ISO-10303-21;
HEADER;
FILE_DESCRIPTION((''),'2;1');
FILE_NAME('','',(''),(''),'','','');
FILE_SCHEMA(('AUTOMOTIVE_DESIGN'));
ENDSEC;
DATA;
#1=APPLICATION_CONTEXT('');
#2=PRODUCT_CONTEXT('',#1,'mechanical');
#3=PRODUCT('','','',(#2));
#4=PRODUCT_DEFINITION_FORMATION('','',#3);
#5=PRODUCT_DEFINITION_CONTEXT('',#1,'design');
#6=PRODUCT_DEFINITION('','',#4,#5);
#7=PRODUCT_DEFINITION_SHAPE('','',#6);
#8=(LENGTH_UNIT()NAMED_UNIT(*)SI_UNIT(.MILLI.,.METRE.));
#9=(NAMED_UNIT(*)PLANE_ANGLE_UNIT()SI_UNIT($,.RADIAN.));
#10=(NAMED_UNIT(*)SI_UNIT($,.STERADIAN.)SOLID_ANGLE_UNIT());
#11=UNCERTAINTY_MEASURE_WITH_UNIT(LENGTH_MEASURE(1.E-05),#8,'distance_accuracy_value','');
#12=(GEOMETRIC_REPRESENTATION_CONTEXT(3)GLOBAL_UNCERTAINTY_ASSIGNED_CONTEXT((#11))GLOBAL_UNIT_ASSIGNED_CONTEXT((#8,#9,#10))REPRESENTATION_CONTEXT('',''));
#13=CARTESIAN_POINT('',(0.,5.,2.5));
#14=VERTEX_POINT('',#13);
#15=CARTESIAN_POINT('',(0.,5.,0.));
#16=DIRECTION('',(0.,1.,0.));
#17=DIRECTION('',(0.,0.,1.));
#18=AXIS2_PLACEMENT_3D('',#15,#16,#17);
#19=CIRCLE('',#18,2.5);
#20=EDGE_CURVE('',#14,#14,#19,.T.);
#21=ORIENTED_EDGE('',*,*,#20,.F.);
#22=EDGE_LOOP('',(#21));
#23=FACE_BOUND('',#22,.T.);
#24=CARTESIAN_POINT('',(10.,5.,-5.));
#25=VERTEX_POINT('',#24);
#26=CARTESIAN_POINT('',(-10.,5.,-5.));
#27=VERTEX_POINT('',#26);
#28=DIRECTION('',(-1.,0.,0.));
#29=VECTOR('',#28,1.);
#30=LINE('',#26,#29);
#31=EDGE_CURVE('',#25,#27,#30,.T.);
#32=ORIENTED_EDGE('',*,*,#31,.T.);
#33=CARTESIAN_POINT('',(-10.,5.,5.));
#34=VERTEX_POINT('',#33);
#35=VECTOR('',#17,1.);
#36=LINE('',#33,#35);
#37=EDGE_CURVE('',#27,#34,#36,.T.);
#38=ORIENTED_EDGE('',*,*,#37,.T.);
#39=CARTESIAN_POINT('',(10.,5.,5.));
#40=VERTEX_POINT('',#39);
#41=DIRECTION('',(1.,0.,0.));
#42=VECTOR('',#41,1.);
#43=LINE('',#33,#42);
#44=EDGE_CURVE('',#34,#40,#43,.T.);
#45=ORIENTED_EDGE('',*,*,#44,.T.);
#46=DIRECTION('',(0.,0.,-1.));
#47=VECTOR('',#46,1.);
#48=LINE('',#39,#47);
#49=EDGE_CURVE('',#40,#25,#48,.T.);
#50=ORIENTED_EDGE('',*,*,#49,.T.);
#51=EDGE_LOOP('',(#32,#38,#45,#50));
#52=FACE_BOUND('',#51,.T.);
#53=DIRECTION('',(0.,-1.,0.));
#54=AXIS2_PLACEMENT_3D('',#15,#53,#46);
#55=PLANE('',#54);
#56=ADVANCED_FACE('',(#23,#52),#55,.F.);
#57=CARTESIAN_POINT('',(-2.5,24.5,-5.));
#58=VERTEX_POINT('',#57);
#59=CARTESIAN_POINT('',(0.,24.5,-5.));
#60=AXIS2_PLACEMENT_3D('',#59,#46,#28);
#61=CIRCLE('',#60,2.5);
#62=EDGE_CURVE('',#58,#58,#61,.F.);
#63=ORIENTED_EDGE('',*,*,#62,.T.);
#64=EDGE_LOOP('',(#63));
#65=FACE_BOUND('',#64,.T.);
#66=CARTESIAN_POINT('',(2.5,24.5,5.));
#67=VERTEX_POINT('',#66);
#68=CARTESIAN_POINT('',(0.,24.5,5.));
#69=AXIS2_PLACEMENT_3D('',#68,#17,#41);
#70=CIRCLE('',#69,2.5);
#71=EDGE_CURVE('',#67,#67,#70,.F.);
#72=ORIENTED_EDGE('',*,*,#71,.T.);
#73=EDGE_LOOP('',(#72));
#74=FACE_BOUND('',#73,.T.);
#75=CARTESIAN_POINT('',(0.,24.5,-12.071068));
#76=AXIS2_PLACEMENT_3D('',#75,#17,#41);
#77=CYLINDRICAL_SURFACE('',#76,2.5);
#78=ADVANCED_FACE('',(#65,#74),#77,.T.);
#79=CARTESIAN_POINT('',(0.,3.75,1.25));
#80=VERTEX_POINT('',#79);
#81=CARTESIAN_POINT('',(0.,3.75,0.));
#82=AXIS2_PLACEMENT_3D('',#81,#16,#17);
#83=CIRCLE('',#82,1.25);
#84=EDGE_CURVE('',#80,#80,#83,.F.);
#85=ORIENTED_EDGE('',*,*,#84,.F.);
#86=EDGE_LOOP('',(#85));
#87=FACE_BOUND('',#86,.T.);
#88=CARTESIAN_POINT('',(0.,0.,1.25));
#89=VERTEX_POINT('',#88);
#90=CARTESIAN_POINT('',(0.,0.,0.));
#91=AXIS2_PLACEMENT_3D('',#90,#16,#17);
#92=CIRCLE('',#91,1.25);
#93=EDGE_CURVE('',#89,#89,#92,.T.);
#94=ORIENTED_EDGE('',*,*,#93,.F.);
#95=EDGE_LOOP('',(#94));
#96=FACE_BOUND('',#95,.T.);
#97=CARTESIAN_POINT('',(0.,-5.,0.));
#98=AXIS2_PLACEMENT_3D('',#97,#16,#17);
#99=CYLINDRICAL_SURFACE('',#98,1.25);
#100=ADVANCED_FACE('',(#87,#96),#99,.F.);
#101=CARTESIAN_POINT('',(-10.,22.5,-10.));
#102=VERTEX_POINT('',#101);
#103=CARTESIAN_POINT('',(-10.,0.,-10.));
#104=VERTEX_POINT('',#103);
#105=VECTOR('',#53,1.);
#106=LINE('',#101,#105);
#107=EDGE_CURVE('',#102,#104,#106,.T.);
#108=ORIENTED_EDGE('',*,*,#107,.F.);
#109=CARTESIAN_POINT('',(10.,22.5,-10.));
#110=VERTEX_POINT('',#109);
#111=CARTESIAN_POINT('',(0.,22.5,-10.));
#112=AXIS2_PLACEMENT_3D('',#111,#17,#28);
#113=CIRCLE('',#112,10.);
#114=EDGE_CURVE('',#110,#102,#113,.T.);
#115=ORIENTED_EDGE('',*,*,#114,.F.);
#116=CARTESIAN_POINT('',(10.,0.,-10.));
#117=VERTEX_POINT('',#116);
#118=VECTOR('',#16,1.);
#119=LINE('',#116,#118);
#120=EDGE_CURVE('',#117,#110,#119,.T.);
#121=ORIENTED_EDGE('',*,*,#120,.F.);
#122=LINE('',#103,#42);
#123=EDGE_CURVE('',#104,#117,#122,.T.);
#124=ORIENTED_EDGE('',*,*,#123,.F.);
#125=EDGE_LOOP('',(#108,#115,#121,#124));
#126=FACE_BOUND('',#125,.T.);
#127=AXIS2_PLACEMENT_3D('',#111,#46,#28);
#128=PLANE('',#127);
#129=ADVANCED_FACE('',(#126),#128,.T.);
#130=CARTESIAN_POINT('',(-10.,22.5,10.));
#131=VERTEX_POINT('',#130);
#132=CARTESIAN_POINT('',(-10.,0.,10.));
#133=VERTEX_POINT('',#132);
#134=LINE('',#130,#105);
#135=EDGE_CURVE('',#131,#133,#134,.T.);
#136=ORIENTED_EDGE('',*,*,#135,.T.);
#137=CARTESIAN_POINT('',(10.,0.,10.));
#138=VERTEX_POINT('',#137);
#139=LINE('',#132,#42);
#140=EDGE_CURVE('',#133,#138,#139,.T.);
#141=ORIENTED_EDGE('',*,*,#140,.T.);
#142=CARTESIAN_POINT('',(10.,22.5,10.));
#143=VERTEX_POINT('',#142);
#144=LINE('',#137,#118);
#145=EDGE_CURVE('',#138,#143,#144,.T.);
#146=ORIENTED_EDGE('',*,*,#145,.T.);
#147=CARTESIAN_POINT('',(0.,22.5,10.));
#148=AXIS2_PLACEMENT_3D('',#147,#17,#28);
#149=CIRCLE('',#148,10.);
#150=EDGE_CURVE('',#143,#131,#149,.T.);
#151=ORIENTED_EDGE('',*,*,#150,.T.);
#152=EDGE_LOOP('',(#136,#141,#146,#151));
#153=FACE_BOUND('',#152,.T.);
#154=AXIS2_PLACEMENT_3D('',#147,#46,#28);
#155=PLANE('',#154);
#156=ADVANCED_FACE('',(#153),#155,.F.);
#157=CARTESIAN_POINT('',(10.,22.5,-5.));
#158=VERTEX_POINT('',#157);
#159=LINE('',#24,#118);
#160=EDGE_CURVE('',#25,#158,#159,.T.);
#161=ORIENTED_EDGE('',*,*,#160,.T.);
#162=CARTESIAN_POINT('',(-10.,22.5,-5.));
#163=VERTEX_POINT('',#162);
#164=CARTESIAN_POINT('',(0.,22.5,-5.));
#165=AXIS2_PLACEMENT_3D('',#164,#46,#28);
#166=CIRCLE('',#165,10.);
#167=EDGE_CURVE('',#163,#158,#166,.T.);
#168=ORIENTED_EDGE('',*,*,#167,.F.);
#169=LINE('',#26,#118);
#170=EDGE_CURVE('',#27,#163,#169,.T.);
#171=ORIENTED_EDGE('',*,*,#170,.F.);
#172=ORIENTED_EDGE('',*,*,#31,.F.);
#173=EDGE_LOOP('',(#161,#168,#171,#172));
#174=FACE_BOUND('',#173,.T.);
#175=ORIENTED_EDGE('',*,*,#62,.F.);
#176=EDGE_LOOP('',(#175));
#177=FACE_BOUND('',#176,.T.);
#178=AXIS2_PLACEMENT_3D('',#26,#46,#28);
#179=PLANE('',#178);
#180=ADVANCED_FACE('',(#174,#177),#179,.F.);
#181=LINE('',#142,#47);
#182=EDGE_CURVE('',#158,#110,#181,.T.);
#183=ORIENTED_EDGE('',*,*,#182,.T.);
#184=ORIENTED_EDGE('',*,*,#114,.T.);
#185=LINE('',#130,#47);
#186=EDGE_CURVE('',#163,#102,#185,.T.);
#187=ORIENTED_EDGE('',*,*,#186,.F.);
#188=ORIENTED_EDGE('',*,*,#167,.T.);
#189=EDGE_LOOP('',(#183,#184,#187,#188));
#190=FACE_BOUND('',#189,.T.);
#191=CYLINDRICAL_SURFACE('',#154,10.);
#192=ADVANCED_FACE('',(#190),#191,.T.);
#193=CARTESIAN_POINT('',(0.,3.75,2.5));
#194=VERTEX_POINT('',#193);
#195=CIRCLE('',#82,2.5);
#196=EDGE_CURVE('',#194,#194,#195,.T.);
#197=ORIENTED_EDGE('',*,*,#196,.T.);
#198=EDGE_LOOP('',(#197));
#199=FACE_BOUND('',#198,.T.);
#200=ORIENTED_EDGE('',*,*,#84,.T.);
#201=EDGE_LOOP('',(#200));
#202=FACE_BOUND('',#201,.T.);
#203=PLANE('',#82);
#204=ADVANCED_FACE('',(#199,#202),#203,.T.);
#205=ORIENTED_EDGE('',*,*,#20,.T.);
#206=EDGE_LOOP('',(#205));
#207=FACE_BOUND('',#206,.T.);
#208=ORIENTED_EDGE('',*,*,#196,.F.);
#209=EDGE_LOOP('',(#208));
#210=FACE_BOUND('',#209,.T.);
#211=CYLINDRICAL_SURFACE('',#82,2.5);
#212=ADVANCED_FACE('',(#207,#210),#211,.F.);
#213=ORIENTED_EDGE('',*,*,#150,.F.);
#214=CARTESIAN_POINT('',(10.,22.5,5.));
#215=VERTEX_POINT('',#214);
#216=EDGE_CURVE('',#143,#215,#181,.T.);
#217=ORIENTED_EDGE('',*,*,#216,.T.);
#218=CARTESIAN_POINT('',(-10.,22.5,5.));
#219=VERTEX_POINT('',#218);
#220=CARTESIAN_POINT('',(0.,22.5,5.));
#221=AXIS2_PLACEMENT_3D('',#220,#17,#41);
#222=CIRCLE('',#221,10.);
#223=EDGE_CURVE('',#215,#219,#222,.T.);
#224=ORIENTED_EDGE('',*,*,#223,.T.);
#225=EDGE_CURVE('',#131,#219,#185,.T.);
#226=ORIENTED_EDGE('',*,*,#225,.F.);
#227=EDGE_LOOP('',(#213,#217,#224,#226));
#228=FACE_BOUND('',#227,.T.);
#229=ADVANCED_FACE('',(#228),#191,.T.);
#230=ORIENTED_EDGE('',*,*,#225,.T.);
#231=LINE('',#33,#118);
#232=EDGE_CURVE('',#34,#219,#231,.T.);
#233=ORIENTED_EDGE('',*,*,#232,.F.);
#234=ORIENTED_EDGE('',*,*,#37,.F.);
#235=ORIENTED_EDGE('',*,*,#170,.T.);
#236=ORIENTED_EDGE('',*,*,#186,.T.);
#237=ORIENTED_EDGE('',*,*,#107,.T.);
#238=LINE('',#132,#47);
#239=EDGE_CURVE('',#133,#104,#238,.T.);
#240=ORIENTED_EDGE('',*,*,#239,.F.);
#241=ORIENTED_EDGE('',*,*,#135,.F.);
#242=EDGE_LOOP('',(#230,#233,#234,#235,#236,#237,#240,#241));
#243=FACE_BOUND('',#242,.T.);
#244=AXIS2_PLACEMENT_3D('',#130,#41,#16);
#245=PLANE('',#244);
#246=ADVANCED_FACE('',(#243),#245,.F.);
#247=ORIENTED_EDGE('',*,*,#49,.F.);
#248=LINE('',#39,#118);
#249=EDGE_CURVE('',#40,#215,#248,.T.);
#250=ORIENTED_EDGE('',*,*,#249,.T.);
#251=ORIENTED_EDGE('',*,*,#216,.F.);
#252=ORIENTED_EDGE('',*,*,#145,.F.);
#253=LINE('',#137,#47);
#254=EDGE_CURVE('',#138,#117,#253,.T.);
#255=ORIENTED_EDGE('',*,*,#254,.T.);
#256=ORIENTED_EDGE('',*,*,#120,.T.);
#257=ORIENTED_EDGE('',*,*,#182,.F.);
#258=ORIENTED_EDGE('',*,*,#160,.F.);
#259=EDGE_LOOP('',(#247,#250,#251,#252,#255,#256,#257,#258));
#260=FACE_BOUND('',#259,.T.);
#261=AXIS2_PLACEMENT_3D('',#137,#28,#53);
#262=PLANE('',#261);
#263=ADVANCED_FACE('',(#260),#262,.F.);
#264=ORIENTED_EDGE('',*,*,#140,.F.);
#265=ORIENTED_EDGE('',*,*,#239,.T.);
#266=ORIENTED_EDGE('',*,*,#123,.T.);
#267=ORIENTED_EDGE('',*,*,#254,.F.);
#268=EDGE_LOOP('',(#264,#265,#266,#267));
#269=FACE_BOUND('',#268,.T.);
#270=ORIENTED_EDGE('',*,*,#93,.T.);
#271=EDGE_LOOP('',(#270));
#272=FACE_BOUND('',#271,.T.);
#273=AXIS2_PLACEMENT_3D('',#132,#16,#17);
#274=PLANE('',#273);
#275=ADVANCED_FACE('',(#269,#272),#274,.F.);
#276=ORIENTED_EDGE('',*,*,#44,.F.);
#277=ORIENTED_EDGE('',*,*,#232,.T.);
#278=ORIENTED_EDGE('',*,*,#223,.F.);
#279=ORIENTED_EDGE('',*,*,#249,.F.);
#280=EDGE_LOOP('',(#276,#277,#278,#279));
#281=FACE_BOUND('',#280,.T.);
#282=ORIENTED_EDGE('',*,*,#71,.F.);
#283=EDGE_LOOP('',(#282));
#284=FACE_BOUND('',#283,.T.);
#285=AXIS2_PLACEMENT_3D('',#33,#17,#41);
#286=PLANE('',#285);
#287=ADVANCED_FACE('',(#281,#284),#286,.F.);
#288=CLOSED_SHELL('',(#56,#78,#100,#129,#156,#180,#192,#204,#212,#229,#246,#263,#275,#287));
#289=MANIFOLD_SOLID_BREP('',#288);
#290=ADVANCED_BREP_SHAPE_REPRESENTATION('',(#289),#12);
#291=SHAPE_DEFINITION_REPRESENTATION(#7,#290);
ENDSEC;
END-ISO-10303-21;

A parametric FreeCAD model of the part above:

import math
import FreeCAD as App
import Part
import Sketcher
from FreeCAD import Vector

doc = App.newDocument("Part")
body = doc.addObject("PartDesign::Body", "Body")

sketch1 = body.newObject("Sketcher::SketchObject", "Sketch")
sketch1.AttachmentSupport = (doc.getObject("XY_Plane"), [""])
sketch1.MapMode = "FlatFace"
sketch1.addGeometry([
    Part.LineSegment(Vector(-10, 22.5, 0), Vector(-10, 0, 0)),
    Part.LineSegment(Vector(-10, 0, 0), Vector(10, 0, 0)),
    Part.LineSegment(Vector(10, 0, 0), Vector(10, 22.5, 0)),
    Part.ArcOfCircle(Part.Circle(Vector(0, 22.5, 0), Vector(0, 0, 1), 10), math.radians(0), math.radians(180)),
], False)
sketch1.addConstraint([
    Sketcher.Constraint("Coincident", 0, 2, 1, 1),
    Sketcher.Constraint("Coincident", 1, 2, 2, 1),
    Sketcher.Constraint("Tangent", 2, 2, 3, 1),
    Sketcher.Constraint("Tangent", 3, 2, 0, 1),
    Sketcher.Constraint("Vertical", 0),
    Sketcher.Constraint("Horizontal", 1),
    Sketcher.Constraint("Vertical", 2),
    Sketcher.Constraint("Symmetric", 0, 2, 1, 2, -1, 1),
    Sketcher.Constraint("Radius", 3, 10.0),
    Sketcher.Constraint("DistanceY", 0, 2, 0, 1, 22.5),
])
pad1 = body.newObject("PartDesign::Pad", "Pad")
pad1.Profile = sketch1
pad1.Length = 20
pad1.Midplane = True

sketch2 = body.newObject("Sketcher::SketchObject", "Sketch001")
sketch2.AttachmentSupport = (doc.getObject("XZ_Plane"), [""])
sketch2.MapMode = "FlatFace"
sketch2.AttachmentOffset = App.Placement(Vector(0, 0, -32.5), App.Rotation())
sketch2.addGeometry([
    Part.LineSegment(Vector(-10, -5, 0), Vector(-10, 5, 0)),
    Part.LineSegment(Vector(-10, 5, 0), Vector(10, 5, 0)),
    Part.LineSegment(Vector(10, 5, 0), Vector(10, -5, 0)),
    Part.LineSegment(Vector(10, -5, 0), Vector(-10, -5, 0)),
], False)
sketch2.addConstraint([
    Sketcher.Constraint("Coincident", 0, 2, 1, 1),
    Sketcher.Constraint("Coincident", 1, 2, 2, 1),
    Sketcher.Constraint("Coincident", 2, 2, 3, 1),
    Sketcher.Constraint("Coincident", 3, 2, 0, 1),
    Sketcher.Constraint("Vertical", 0),
    Sketcher.Constraint("Horizontal", 1),
    Sketcher.Constraint("Vertical", 2),
    Sketcher.Constraint("Horizontal", 3),
    Sketcher.Constraint("Symmetric", 0, 2, 2, 2, -1, 1),
    Sketcher.Constraint("DistanceX", 1, 1, 1, 2, 20.0),
    Sketcher.Constraint("DistanceY", 0, 1, 0, 2, 10.0),
])
pocket1 = body.newObject("PartDesign::Pocket", "Pocket")
pocket1.Profile = sketch2
pocket1.Length = 27.5
pocket1.Reversed = True

sketch3 = body.newObject("Sketcher::SketchObject", "Sketch002")
sketch3.AttachmentSupport = (doc.getObject("XY_Plane"), [""])
sketch3.MapMode = "FlatFace"
sketch3.AttachmentOffset = App.Placement(Vector(0, 0, 5), App.Rotation())
sketch3.addGeometry(Part.Circle(Vector(0, 24.5, 0), Vector(0, 0, 1), 2.5), False)
sketch3.addConstraint([
    Sketcher.Constraint("PointOnObject", 0, 3, -2),
    Sketcher.Constraint("Diameter", 0, 5.0),
    Sketcher.Constraint("DistanceY", -1, 1, 0, 3, 24.5),
])
pad2 = body.newObject("PartDesign::Pad", "Pad001")
pad2.Profile = sketch3
pad2.Length = 10
pad2.Reversed = True

sketch4 = body.newObject("Sketcher::SketchObject", "Sketch003")
sketch4.AttachmentSupport = (doc.getObject("XZ_Plane"), [""])
sketch4.MapMode = "FlatFace"
sketch4.AttachmentOffset = App.Placement(Vector(0, 0, -5), App.Rotation())
sketch4.addGeometry(Part.Circle(Vector(0, 0, 0), Vector(0, 0, 1), 1.25), False)
sketch4.addConstraint([
    Sketcher.Constraint("Coincident", 0, 3, -1, 1),
    Sketcher.Constraint("Diameter", 0, 2.5),
])
pocket2 = body.newObject("PartDesign::Pocket", "Pocket001")
pocket2.Profile = sketch4
pocket2.Length = 10
pocket2.Reversed = True

sketch5 = body.newObject("Sketcher::SketchObject", "Sketch004")
sketch5.AttachmentSupport = (doc.getObject("XZ_Plane"), [""])
sketch5.MapMode = "FlatFace"
sketch5.AttachmentOffset = App.Placement(Vector(0, 0, -5), App.Rotation())
sketch5.addGeometry(Part.Circle(Vector(0, 0, 0), Vector(0, 0, 1), 2.5), False)
sketch5.addConstraint([
    Sketcher.Constraint("Coincident", 0, 3, -1, 1),
    Sketcher.Constraint("Diameter", 0, 5.0),
])
pocket3 = body.newObject("PartDesign::Pocket", "Pocket002")
pocket3.Profile = sketch5
pocket3.Length = 1.25
pocket3.Reversed = True

doc.recompute()
